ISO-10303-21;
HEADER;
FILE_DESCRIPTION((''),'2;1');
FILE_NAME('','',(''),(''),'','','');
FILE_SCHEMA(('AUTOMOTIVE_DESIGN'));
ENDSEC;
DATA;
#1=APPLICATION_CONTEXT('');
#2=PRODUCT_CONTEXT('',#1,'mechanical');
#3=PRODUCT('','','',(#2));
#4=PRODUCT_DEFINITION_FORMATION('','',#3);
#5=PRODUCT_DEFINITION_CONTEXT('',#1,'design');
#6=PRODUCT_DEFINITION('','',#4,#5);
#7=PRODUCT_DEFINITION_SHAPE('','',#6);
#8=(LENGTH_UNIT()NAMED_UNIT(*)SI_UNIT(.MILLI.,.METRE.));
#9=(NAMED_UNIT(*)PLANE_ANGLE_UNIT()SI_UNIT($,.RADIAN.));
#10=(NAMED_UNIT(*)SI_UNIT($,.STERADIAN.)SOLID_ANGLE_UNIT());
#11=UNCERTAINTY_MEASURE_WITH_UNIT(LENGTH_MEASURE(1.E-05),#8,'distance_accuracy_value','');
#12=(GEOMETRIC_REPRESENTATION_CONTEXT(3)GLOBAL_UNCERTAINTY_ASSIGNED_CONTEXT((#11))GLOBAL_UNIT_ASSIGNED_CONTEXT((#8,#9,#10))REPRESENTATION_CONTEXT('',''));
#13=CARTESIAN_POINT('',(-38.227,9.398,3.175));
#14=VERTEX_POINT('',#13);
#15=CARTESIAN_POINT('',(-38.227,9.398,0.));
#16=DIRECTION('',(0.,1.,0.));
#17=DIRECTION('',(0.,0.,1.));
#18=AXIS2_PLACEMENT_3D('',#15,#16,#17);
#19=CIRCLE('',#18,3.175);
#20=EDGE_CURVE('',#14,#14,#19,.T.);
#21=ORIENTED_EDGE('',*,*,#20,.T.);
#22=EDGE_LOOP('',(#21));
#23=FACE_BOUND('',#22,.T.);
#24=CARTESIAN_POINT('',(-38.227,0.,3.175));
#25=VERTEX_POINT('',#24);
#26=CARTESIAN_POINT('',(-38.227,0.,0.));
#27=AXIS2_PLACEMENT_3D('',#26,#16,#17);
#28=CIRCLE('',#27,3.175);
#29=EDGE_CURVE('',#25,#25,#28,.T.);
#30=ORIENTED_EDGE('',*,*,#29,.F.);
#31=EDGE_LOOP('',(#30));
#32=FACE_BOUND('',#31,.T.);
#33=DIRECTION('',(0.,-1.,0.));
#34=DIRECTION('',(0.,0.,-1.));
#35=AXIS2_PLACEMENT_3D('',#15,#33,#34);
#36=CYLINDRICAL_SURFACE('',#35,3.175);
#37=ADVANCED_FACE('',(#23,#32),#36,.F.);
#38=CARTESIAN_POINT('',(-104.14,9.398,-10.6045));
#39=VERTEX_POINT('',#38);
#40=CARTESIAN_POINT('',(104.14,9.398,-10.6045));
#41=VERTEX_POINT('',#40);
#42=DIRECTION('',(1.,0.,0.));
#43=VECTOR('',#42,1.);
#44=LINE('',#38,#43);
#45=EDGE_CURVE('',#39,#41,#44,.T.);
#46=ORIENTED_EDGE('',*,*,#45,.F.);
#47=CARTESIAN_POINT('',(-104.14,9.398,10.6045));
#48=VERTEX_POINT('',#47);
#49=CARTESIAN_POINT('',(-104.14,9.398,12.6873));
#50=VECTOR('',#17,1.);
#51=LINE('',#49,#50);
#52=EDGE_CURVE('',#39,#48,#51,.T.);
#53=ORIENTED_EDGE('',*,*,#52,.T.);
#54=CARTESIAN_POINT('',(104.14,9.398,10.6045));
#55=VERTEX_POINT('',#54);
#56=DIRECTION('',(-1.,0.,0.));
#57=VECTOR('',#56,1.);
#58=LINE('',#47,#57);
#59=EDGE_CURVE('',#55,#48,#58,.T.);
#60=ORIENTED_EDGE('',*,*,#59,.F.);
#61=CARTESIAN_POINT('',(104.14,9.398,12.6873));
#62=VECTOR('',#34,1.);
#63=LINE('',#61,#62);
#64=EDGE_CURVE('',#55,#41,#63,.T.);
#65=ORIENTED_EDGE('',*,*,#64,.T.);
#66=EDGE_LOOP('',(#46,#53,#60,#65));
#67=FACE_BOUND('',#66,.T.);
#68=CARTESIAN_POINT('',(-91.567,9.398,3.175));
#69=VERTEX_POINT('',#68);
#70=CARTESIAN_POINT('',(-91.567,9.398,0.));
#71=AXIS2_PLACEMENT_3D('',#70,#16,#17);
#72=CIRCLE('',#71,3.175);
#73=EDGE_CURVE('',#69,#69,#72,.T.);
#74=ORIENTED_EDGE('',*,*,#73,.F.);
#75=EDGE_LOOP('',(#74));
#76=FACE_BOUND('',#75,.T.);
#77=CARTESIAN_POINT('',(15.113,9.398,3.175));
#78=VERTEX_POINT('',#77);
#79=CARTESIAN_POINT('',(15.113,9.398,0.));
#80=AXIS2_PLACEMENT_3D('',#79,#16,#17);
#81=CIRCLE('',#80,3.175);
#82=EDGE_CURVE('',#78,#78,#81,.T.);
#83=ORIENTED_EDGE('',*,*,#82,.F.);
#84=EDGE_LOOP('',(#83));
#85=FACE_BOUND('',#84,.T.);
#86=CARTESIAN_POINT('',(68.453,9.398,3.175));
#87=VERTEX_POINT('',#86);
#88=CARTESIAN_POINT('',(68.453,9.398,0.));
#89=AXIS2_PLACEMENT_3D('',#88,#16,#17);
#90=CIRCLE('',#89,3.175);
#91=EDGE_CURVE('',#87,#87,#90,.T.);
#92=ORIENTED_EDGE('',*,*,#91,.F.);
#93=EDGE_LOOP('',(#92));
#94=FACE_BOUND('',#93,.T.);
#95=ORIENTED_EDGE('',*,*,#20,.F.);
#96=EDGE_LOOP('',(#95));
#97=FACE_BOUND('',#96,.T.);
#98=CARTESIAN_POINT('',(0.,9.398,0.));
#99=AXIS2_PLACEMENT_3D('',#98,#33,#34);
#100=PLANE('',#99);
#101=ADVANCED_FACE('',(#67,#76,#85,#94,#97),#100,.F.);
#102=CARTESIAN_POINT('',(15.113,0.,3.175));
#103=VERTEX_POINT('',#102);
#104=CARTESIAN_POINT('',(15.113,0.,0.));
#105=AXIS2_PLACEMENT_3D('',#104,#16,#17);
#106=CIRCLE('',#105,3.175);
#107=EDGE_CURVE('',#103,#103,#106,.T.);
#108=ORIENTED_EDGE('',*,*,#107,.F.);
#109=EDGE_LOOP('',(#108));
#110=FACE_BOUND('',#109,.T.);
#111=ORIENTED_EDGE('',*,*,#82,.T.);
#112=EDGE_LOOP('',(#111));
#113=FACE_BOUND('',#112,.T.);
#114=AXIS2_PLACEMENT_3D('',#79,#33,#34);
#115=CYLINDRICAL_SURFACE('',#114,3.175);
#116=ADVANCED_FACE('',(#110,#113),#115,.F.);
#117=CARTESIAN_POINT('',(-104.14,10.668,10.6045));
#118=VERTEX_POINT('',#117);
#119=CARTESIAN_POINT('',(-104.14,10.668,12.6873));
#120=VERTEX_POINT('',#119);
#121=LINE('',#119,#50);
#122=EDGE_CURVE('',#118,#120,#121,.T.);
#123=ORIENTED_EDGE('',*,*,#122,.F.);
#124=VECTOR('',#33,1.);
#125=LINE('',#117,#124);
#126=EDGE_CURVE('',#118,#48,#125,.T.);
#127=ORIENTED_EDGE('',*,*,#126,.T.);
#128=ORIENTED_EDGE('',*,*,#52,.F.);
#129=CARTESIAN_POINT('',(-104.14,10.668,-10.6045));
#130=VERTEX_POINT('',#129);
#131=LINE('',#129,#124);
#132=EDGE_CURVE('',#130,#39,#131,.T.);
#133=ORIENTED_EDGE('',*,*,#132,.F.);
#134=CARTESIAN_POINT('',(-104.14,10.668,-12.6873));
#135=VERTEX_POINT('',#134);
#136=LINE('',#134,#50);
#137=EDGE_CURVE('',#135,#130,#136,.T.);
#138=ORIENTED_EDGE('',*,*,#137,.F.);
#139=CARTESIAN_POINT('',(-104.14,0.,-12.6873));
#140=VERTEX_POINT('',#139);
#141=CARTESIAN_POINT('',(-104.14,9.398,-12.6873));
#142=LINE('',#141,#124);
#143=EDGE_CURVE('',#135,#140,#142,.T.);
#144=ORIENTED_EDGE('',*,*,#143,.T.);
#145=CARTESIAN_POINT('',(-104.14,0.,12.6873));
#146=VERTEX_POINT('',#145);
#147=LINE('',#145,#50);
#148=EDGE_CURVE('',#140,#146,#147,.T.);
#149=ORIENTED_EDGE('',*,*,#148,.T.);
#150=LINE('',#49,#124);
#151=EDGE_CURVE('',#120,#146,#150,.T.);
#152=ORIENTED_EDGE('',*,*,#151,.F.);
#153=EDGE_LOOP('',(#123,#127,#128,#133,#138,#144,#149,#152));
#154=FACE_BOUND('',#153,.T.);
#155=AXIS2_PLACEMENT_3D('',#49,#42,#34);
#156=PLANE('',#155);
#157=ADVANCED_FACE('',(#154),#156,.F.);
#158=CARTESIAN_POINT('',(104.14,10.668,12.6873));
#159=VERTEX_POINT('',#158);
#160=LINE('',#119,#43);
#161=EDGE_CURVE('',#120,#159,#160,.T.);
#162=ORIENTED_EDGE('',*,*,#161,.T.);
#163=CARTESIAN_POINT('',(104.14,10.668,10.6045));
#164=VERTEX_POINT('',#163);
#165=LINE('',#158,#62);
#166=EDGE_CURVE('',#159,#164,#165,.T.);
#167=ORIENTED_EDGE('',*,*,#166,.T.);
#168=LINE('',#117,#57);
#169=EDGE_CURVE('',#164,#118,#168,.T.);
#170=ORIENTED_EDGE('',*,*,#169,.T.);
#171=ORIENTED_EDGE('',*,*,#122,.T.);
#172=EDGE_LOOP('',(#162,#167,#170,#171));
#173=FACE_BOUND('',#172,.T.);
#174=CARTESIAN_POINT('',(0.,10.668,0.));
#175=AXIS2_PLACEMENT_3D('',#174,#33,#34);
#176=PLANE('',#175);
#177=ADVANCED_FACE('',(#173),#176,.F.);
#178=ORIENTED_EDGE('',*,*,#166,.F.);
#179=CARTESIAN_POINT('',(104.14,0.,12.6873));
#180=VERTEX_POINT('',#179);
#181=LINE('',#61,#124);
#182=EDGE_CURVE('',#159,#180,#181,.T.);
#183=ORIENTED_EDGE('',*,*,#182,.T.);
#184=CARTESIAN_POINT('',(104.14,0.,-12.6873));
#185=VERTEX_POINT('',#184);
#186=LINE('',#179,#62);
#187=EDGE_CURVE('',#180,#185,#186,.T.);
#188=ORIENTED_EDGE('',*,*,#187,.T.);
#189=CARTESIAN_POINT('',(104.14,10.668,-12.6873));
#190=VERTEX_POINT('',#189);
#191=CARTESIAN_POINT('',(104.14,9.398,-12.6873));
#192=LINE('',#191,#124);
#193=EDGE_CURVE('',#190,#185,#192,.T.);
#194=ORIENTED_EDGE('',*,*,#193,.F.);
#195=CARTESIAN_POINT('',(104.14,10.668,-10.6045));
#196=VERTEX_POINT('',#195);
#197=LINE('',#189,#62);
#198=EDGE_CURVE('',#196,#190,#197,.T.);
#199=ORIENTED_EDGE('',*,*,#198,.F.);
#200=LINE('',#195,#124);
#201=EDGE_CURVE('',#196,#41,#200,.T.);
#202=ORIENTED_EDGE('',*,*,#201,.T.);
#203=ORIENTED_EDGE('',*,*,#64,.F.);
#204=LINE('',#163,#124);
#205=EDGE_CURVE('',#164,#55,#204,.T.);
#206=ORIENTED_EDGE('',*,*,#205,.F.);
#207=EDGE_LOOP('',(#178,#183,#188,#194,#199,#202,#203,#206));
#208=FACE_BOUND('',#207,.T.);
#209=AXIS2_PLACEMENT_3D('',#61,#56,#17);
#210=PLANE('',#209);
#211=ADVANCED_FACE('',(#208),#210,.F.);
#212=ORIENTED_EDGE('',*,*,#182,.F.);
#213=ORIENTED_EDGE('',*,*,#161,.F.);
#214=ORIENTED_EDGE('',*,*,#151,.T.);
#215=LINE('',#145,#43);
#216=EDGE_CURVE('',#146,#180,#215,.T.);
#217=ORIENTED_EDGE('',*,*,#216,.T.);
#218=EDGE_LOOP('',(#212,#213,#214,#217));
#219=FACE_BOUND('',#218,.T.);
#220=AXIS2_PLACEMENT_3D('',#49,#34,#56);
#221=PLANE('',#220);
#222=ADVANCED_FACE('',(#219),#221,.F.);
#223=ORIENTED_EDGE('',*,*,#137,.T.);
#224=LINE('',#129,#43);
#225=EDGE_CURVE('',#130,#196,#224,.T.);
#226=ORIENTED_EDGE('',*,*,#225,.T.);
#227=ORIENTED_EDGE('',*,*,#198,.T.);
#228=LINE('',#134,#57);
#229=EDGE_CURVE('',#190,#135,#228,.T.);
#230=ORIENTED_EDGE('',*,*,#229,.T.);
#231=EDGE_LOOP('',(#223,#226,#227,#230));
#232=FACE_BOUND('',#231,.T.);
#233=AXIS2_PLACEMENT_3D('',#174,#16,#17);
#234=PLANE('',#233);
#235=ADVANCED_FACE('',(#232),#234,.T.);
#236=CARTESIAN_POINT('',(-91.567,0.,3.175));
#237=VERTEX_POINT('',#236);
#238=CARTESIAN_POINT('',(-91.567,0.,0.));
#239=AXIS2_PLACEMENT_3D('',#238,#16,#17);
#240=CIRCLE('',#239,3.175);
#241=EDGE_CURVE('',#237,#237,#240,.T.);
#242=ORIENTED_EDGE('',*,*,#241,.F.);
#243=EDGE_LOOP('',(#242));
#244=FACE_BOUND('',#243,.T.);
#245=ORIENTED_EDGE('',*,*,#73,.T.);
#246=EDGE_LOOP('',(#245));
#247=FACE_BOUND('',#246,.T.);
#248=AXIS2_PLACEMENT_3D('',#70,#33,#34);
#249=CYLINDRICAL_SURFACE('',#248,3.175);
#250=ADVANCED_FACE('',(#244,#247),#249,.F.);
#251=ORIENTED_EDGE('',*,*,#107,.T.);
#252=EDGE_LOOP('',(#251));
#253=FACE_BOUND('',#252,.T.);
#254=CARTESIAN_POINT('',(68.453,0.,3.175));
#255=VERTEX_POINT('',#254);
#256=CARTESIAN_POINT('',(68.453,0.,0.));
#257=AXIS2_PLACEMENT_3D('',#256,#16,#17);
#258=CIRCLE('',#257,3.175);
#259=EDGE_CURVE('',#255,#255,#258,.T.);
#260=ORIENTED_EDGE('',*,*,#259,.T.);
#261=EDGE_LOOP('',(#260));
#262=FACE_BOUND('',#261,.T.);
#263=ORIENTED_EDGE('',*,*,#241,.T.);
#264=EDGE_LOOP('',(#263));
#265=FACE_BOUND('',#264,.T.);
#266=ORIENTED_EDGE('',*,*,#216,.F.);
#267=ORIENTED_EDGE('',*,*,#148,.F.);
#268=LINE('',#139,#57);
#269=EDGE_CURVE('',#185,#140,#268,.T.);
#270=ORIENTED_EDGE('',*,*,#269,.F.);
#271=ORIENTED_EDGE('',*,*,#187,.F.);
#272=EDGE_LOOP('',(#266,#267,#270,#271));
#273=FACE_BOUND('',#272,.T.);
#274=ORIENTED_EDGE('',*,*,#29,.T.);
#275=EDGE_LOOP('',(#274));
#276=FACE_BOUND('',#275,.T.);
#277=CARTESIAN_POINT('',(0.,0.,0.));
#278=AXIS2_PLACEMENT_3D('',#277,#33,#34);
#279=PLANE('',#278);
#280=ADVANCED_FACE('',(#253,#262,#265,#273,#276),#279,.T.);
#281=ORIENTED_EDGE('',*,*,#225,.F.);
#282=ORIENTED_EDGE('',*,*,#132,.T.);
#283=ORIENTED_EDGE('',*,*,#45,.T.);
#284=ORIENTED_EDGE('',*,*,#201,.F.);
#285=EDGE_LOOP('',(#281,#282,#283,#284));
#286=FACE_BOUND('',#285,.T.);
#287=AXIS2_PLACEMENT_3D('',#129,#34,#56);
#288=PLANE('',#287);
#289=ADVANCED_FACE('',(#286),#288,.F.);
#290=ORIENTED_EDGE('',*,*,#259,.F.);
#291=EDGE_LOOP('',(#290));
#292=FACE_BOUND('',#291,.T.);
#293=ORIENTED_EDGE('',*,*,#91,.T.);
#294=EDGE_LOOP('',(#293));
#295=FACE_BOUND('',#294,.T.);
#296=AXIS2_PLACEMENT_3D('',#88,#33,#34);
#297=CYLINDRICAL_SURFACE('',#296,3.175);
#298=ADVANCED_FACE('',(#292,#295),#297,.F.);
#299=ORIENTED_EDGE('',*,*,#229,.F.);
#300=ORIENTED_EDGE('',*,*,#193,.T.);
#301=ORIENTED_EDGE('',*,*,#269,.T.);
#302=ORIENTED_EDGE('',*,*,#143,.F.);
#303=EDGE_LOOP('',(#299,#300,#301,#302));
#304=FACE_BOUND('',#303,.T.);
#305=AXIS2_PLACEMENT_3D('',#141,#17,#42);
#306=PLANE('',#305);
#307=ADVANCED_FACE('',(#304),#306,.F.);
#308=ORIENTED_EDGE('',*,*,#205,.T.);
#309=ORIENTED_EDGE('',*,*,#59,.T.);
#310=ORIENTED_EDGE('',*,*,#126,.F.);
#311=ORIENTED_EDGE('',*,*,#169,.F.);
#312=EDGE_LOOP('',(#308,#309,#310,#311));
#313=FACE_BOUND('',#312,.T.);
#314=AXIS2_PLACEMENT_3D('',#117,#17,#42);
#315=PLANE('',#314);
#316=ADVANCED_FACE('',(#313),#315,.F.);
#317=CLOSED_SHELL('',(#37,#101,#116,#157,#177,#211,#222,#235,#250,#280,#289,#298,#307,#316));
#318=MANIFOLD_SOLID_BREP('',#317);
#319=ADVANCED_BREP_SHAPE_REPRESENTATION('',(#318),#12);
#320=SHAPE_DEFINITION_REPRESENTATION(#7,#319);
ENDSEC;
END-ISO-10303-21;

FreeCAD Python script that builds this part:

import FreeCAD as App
import Part
import Sketcher
Q = App.Units.Quantity


def add_polygon(sketch, points):
    """Adds a closed chain of lines whose ends are joined by coincident constraints."""
    first, n = sketch.GeometryCount, len(points)
    for a, b in zip(points, points[1:] + points[:1]):
        sketch.addGeometry(Part.LineSegment(App.Vector(*a, 0), App.Vector(*b, 0)), False)
    for i in range(n):
        sketch.addConstraint(Sketcher.Constraint("Coincident", first + i, 2, first + (i + 1) % n, 1))

doc = App.newDocument("Part")
body = doc.addObject("PartDesign::Body", "Body")

sketch1 = doc.addObject("Sketcher::SketchObject", "Sketch")
body.addObject(sketch1)
sketch1.AttachmentSupport = (doc.XZ_Plane, [""])
sketch1.MapMode = "FlatFace"
add_polygon(sketch1, [(-104.1, -12.7), (-104.1, 12.7), (104.1, 12.7), (104.1, -12.7)])
sketch1.addGeometry(Part.Circle(App.Vector(-91.6, 0, 0), App.Vector(0, 0, 1), 3.2), False)
sketch1.addGeometry(Part.Circle(App.Vector(-38.2, 0, 0), App.Vector(0, 0, 1), 3.2), False)
sketch1.addGeometry(Part.Circle(App.Vector(15.1, 0, 0), App.Vector(0, 0, 1), 3.2), False)
sketch1.addGeometry(Part.Circle(App.Vector(68.5, 0, 0), App.Vector(0, 0, 1), 3.2), False)
sketch1.addConstraint([
    Sketcher.Constraint("Vertical", 0),
    Sketcher.Constraint("Horizontal", 1),
    Sketcher.Constraint("Vertical", 2),
    Sketcher.Constraint("Horizontal", 3),
    Sketcher.Constraint("Equal", 4, 5),
    Sketcher.Constraint("Equal", 5, 6),
    Sketcher.Constraint("Equal", 6, 7),
    Sketcher.Constraint("Symmetric", 0, 2, 2, 2, -1, 1),
    Sketcher.Constraint("PointOnObject", 4, 3, -1),
    Sketcher.Constraint("PointOnObject", 5, 3, -1),
    Sketcher.Constraint("PointOnObject", 6, 3, -1),
    Sketcher.Constraint("PointOnObject", 7, 3, -1),
    Sketcher.Constraint("Diameter", 4, Q("0.25 in")),
    Sketcher.Constraint("DistanceX", 1, 1, 1, 2, Q("8.2 in")),
    Sketcher.Constraint("DistanceX", 4, 3, 5, 3, Q("2.1 in")),
    Sketcher.Constraint("DistanceX", 5, 3, 6, 3, Q("2.1 in")),
    Sketcher.Constraint("DistanceX", 6, 3, 7, 3, Q("2.1 in")),
    Sketcher.Constraint("DistanceY", 0, 1, 0, 2, Q("0.999 in")),
    Sketcher.Constraint("DistanceX", 4, 3, -1, 1, Q("3.605 in")),
])
pad1 = doc.addObject("PartDesign::Pad", "Pad")
body.addObject(pad1)
pad1.Profile = sketch1
pad1.Length = Q("0.37 in")
pad1.Reversed = True

sketch2 = doc.addObject("Sketcher::SketchObject", "Sketch001")
body.addObject(sketch2)
sketch2.AttachmentSupport = (doc.XZ_Plane, [""])
sketch2.MapMode = "FlatFace"
sketch2.AttachmentOffset = App.Placement(App.Vector(0, 0, -0.37 * 25.4), App.Rotation())
add_polygon(sketch2, [(-104.1, -12.7), (-104.1, -10.6), (104.1, -10.6), (104.1, -12.7)])
add_polygon(sketch2, [(-104.1, 10.6), (-104.1, 12.7), (104.1, 12.7), (104.1, 10.6)])
sketch2.addConstraint([
    Sketcher.Constraint("Vertical", 0),
    Sketcher.Constraint("Horizontal", 1),
    Sketcher.Constraint("Vertical", 2),
    Sketcher.Constraint("Horizontal", 3),
    Sketcher.Constraint("Vertical", 4),
    Sketcher.Constraint("Horizontal", 5),
    Sketcher.Constraint("Vertical", 6),
    Sketcher.Constraint("Horizontal", 7),
    Sketcher.Constraint("Symmetric", 2, 2, 4, 2, -1, 1),
    Sketcher.Constraint("Symmetric", 0, 2, 6, 2, -1, 1),
    Sketcher.Constraint("Vertical", 3, 2, 4, 2),
    Sketcher.Constraint("DistanceX", 1, 1, 1, 2, Q("8.2 in")),
    Sketcher.Constraint("DistanceY", 0, 1, 0, 2, Q("0.082 in")),
    Sketcher.Constraint("DistanceY", 0, 2, 4, 2, Q("0.917 in")),
])
pad2 = doc.addObject("PartDesign::Pad", "Pad001")
body.addObject(pad2)
pad2.Profile = sketch2
pad2.Length = Q("0.05 in")
pad2.Reversed = True

doc.recompute()
